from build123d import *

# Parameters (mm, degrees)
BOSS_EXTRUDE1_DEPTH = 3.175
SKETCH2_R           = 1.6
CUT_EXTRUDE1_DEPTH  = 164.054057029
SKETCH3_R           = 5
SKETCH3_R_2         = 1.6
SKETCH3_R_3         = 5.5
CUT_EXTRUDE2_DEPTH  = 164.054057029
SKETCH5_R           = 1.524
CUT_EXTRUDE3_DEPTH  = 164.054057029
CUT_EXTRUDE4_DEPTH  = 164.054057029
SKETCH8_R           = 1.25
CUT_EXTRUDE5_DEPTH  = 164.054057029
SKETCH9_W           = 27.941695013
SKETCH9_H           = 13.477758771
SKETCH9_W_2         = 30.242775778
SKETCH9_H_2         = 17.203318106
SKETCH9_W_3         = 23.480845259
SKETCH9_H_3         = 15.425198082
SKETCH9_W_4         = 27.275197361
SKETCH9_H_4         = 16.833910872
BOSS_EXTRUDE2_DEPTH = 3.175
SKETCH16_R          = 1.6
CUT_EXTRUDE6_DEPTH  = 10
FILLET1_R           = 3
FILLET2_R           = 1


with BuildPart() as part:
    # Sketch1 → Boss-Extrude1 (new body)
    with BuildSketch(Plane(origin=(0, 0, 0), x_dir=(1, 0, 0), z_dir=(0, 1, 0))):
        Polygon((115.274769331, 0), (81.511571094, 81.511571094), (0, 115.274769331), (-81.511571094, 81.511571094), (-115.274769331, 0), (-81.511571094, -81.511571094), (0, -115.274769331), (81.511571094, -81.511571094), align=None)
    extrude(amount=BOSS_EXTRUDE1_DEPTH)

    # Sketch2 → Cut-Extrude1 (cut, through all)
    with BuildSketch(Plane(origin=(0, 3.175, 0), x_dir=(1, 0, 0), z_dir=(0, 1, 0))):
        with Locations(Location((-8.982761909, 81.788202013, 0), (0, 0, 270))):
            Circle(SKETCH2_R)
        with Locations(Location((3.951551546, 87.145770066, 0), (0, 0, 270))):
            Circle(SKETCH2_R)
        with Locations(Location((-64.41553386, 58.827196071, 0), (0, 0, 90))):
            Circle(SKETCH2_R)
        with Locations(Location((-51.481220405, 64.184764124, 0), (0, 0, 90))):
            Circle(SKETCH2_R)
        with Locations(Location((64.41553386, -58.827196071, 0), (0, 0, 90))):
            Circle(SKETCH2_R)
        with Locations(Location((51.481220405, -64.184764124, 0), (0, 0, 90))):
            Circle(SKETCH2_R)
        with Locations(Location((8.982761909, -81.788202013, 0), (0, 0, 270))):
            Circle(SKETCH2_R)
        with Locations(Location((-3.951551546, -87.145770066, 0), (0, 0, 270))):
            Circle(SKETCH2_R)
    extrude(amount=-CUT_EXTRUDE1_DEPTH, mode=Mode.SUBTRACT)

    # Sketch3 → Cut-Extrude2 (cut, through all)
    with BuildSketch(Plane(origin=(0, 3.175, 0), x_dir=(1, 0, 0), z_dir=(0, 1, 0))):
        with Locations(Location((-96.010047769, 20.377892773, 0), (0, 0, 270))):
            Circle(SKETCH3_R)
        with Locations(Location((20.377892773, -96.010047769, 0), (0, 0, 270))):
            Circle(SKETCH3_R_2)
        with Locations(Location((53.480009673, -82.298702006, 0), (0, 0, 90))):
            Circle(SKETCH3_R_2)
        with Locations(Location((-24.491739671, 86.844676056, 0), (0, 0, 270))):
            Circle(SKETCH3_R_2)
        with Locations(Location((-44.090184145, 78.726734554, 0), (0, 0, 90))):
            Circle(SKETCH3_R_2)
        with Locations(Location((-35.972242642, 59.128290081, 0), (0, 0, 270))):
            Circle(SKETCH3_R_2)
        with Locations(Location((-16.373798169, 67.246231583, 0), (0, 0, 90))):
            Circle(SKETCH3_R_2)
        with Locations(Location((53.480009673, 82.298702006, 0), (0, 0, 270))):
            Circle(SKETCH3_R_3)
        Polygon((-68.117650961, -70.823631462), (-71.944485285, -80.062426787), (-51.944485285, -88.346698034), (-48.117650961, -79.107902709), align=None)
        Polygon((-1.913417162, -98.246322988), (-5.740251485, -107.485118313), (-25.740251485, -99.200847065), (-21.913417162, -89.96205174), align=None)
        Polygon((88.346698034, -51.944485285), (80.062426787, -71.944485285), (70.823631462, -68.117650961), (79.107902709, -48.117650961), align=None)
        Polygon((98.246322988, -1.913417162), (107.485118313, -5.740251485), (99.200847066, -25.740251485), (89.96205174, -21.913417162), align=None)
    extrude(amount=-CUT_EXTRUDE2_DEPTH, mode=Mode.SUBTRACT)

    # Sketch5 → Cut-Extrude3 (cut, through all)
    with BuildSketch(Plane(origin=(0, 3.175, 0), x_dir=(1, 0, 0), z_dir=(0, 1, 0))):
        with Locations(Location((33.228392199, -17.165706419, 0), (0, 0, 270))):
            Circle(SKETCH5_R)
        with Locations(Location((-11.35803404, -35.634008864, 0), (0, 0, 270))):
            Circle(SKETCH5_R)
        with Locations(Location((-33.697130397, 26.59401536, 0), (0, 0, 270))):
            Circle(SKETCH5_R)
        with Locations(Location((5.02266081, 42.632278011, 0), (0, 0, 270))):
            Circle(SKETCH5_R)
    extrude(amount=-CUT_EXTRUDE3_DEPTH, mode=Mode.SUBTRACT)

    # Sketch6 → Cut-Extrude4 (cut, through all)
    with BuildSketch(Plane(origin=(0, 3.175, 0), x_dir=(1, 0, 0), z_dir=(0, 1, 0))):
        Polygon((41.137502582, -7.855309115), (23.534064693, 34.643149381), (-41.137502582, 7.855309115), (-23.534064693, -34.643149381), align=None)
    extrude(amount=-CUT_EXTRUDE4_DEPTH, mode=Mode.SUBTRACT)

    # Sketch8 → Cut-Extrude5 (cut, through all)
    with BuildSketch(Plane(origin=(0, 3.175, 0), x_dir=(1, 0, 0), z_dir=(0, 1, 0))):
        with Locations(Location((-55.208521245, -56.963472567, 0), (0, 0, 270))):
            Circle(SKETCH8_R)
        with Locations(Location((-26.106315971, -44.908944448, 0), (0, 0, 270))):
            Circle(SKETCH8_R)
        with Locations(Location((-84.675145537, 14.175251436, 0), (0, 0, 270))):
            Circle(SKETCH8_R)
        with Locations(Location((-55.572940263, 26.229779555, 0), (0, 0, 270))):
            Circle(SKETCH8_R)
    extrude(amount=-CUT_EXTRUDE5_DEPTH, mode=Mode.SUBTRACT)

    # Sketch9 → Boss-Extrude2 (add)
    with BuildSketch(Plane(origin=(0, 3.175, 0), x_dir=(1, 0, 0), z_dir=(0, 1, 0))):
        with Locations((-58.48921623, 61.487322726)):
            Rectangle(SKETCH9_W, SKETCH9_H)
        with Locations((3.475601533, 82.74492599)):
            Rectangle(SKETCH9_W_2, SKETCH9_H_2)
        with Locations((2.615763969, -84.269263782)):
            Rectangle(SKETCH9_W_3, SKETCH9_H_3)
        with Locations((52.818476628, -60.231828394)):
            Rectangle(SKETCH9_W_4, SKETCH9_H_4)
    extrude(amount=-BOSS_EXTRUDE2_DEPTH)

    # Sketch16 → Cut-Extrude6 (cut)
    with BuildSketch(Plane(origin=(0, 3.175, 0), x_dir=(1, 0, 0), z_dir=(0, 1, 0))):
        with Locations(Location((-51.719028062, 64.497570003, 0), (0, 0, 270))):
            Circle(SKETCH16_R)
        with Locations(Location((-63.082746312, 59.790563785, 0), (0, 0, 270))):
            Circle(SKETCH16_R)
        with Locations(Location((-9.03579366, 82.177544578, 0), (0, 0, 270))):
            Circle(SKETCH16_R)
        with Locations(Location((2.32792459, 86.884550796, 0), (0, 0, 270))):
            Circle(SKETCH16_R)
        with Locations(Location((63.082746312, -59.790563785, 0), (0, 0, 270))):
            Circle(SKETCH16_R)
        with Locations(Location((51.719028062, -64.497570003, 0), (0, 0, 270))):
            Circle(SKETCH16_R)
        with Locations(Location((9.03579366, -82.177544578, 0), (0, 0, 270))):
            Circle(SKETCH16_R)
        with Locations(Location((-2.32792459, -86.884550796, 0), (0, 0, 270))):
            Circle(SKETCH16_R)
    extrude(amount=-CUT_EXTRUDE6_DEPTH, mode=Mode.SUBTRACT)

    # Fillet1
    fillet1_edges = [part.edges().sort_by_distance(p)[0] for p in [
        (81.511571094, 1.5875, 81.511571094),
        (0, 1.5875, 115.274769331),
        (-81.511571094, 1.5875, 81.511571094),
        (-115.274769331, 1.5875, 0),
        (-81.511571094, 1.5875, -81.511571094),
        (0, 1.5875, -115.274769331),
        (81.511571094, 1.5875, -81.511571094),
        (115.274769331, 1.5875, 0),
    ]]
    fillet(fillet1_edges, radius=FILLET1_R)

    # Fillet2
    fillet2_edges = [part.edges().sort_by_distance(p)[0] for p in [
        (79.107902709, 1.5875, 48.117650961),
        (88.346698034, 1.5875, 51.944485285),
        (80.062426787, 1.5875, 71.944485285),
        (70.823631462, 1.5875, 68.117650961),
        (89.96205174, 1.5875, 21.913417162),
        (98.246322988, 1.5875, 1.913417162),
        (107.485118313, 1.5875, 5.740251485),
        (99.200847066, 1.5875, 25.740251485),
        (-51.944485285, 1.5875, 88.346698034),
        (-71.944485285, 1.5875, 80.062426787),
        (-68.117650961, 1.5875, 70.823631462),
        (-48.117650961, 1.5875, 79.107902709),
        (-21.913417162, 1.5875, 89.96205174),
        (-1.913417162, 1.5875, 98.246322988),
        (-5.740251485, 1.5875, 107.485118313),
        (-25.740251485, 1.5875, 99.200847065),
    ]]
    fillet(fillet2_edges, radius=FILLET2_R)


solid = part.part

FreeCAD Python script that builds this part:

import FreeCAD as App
import Part
import Sketcher

V = App.Vector
Q = App.Units.Quantity


def edges_at(feature, points):
    """Names of the edges that pass closest to the given points."""
    edges = feature.Shape.Edges
    near = lambda p: min(range(len(edges)), key=lambda i: edges[i].distToShape(Part.Vertex(*p))[0])
    return sorted({f"Edge{near(p) + 1}" for p in points})


def add_polygon(sketch, points):
    """Adds a closed chain of lines whose ends are joined by coincident constraints."""
    first, n = sketch.GeometryCount, len(points)
    for a, b in zip(points, points[1:] + points[:1]):
        sketch.addGeometry(Part.LineSegment(App.Vector(*a, 0), App.Vector(*b, 0)), False)
    for i in range(n):
        sketch.addConstraint(Sketcher.Constraint("Coincident", first + i, 2, first + (i + 1) % n, 1))

doc = App.newDocument("Part")
body = doc.addObject("PartDesign::Body", "Body")

# Sketch on XZ plane
sketch1 = body.newObject("Sketcher::SketchObject", "Sketch")
sketch1.AttachmentSupport = (doc.getObject("XZ_Plane"), [""])
sketch1.MapMode = "FlatFace"
add_polygon(sketch1, [(115, 0), (82, -82), (0, -115), (-82, -82), (-115, 0), (-82, 82), (0, 115), (82, 82)])  # lines 0-7
sketch1.addConstraint(Sketcher.Constraint("Symmetric", 0, 2, 4, 2, -1, 1))
sketch1.addConstraint(Sketcher.Constraint("Symmetric", 1, 2, 5, 2, -1, 1))
sketch1.addConstraint(Sketcher.Constraint("Symmetric", 2, 2, 6, 2, -1, 1))
sketch1.addConstraint(Sketcher.Constraint("Symmetric", 3, 2, 7, 2, -1, 1))
sketch1.addConstraint(Sketcher.Constraint("Symmetric", 0, 2, 2, 2, -2))
sketch1.addConstraint(Sketcher.Constraint("PointOnObject", 1, 2, -2))
sketch1.addConstraint(Sketcher.Constraint("PointOnObject", 3, 2, -1))
sketch1.addConstraint(Sketcher.Constraint("Perpendicular", 0, 2))
sketch1.addConstraint(Sketcher.Constraint("Equal", 0, 1))
sketch1.addConstraint(Sketcher.Constraint("Angle", 0, Q("-112.5 deg")))
sketch1.addConstraint(Sketcher.Constraint("DistanceY", 1, 2, 0, 2, 33.763198))
pad1 = body.newObject("PartDesign::Pad", "Pad")
pad1.Profile = sketch1
pad1.Length = 3.175
pad1.Reversed = True

# Sketch on XZ plane
sketch2 = body.newObject("Sketcher::SketchObject", "Sketch001")
sketch2.AttachmentSupport = (doc.getObject("XZ_Plane"), [""])
sketch2.MapMode = "FlatFace"
sketch2.AttachmentOffset = App.Placement(V(0, 0, -3.175), App.Rotation())
sketch2.addGeometry(Part.Circle(V(-9, -81.8, 0), V(0, 0, 1), 1.6), False)
sketch2.addGeometry(Part.Circle(V(4, -87.1, 0), V(0, 0, 1), 1.6), False)
sketch2.addGeometry(Part.Circle(V(-64.4, -58.8, 0), V(0, 0, 1), 1.6), False)
sketch2.addGeometry(Part.Circle(V(-51.5, -64.2, 0), V(0, 0, 1), 1.6), False)
sketch2.addGeometry(Part.Circle(V(64.4, 58.8, 0), V(0, 0, 1), 1.6), False)
sketch2.addGeometry(Part.Circle(V(51.5, 64.2, 0), V(0, 0, 1), 1.6), False)
sketch2.addGeometry(Part.Circle(V(9, 81.8, 0), V(0, 0, 1), 1.6), False)
sketch2.addGeometry(Part.Circle(V(-4, 87.1, 0), V(0, 0, 1), 1.6), False)
sketch2.addConstraint(Sketcher.Constraint("Equal", 0, 1))
sketch2.addConstraint(Sketcher.Constraint("Equal", 1, 2))
sketch2.addConstraint(Sketcher.Constraint("Equal", 2, 3))
sketch2.addConstraint(Sketcher.Constraint("Equal", 3, 4))
sketch2.addConstraint(Sketcher.Constraint("Equal", 4, 5))
sketch2.addConstraint(Sketcher.Constraint("Equal", 5, 6))
sketch2.addConstraint(Sketcher.Constraint("Equal", 6, 7))
sketch2.addConstraint(Sketcher.Constraint("Symmetric", 2, 3, 4, 3, -1, 1))
sketch2.addConstraint(Sketcher.Constraint("Symmetric", 3, 3, 5, 3, -1, 1))
sketch2.addConstraint(Sketcher.Constraint("Symmetric", 0, 3, 6, 3, -1, 1))
sketch2.addConstraint(Sketcher.Constraint("Symmetric", 1, 3, 7, 3, -1, 1))
sketch2.addConstraint(Sketcher.Constraint("Diameter", 0, 3.2))
sketch2.addConstraint(Sketcher.Constraint("DistanceY", 0, 3, 4, 3, 140.615398))
sketch2.addConstraint(Sketcher.Constraint("DistanceX", 0, 3, -1, 1, 8.982762))
sketch2.addConstraint(Sketcher.Constraint("DistanceX", -1, 1, 1, 3, 3.951552))
sketch2.addConstraint(Sketcher.Constraint("DistanceY", 1, 3, -1, 1, 87.14577))
sketch2.addConstraint(Sketcher.Constraint("DistanceX", 3, 3, -1, 1, 51.48122))
sketch2.addConstraint(Sketcher.Constraint("DistanceY", 1, 3, 0, 3, 5.357568))
sketch2.addConstraint(Sketcher.Constraint("DistanceX", 2, 3, 0, 3, 55.432772))
sketch2.addConstraint(Sketcher.Constraint("DistanceY", 3, 3, 2, 3, 5.357568))
pocket1 = body.newObject("PartDesign::Pocket", "Pocket")
pocket1.Profile = sketch2
pocket1.Type = "ThroughAll"
pocket1.Reversed = True

# Sketch on XZ plane
sketch3 = body.newObject("Sketcher::SketchObject", "Sketch002")
sketch3.AttachmentSupport = (doc.getObject("XZ_Plane"), [""])
sketch3.MapMode = "FlatFace"
sketch3.AttachmentOffset = App.Placement(V(0, 0, -3.175), App.Rotation())
sketch3.addGeometry(Part.Circle(V(-96, -20.4, 0), V(0, 0, 1), 5), False)  # 0
sketch3.addGeometry(Part.Circle(V(20.4, 96, 0), V(0, 0, 1), 1.6), False)  # 1
sketch3.addGeometry(Part.Circle(V(53.5, 82.3, 0), V(0, 0, 1), 1.6), False)  # 2
sketch3.addGeometry(Part.Circle(V(-24.5, -86.8, 0), V(0, 0, 1), 1.6), False)  # 3
sketch3.addGeometry(Part.Circle(V(-44.1, -78.7, 0), V(0, 0, 1), 1.6), False)  # 4
sketch3.addGeometry(Part.Circle(V(-36, -59.1, 0), V(0, 0, 1), 1.6), False)  # 5
sketch3.addGeometry(Part.Circle(V(-16.4, -67.2, 0), V(0, 0, 1), 1.6), False)  # 6
sketch3.addGeometry(Part.Circle(V(53.5, -82.3, 0), V(0, 0, 1), 5.5), False)  # 7
add_polygon(sketch3, [(-68.1, 70.8), (-71.9, 80.1), (-51.9, 88.3), (-48.1, 79.1)])  # lines 8-11
add_polygon(sketch3, [(-5.7, 107.5), (-1.9, 98.2), (-21.9, 90), (-25.7, 99.2)])  # lines 12-15
add_polygon(sketch3, [(80.1, 71.9), (88.3, 51.9), (79.1, 48.1), (70.8, 68.1)])  # lines 16-19
add_polygon(sketch3, [(107.5, 5.7), (98.2, 1.9), (90, 21.9), (99.2, 25.7)])  # lines 20-23
sketch3.addConstraint(Sketcher.Constraint("Equal", 1, 2))
sketch3.addConstraint(Sketcher.Constraint("Equal", 2, 3))
sketch3.addConstraint(Sketcher.Constraint("Equal", 3, 4))
sketch3.addConstraint(Sketcher.Constraint("Equal", 4, 5))
sketch3.addConstraint(Sketcher.Constraint("Equal", 5, 6))
sketch3.addConstraint(Sketcher.Constraint("Symmetric", 2, 3, 7, 3, -1))
sketch3.addConstraint(Sketcher.Constraint("Perpendicular", 8, 9))
sketch3.addConstraint(Sketcher.Constraint("Perpendicular", 9, 10))
sketch3.addConstraint(Sketcher.Constraint("Perpendicular", 10, 11))
sketch3.addConstraint(Sketcher.Constraint("Perpendicular", 11, 12))
sketch3.addConstraint(Sketcher.Constraint("Perpendicular", 12, 13))
sketch3.addConstraint(Sketcher.Constraint("Perpendicular", 13, 14))
sketch3.addConstraint(Sketcher.Constraint("Perpendicular", 14, 15))
sketch3.addConstraint(Sketcher.Constraint("Perpendicular", 15, 16))
sketch3.addConstraint(Sketcher.Constraint("Perpendicular", 16, 17))
sketch3.addConstraint(Sketcher.Constraint("Perpendicular", 17, 18))
sketch3.addConstraint(Sketcher.Constraint("Perpendicular", 18, 19))
sketch3.addConstraint(Sketcher.Constraint("Parallel", 19, 20))
sketch3.addConstraint(Sketcher.Constraint("Perpendicular", 20, 21))
sketch3.addConstraint(Sketcher.Constraint("Perpendicular", 21, 22))
sketch3.addConstraint(Sketcher.Constraint("Perpendicular", 22, 23))
sketch3.addConstraint(Sketcher.Constraint("Equal", 10, 12))
sketch3.addConstraint(Sketcher.Constraint("Equal", 11, 13))
sketch3.addConstraint(Sketcher.Constraint("Equal", 15, 16))
sketch3.addConstraint(Sketcher.Constraint("Equal", 14, 17))
sketch3.addConstraint(Sketcher.Constraint("Equal", 19, 20))
sketch3.addConstraint(Sketcher.Constraint("Equal", 18, 21))
sketch3.addConstraint(Sketcher.Constraint("Diameter", 0, 10.0))
sketch3.addConstraint(Sketcher.Constraint("Diameter", 7, 11.0))
sketch3.addConstraint(Sketcher.Constraint("Diameter", 1, 3.2))
sketch3.addConstraint(Sketcher.Constraint("Distance", 8, 10.0))
sketch3.addConstraint(Sketcher.Constraint("Angle", 8, Q("112.5 deg")))
sketch3.addConstraint(Sketcher.Constraint("DistanceX", 8, 2, 9, 2, 20.0))
sketch3.addConstraint(Sketcher.Constraint("DistanceX", 6, 3, -1, 1, 16.373798))
sketch3.addConstraint(Sketcher.Constraint("DistanceY", -1, 1, 9, 2, 88.346698))
sketch3.addConstraint(Sketcher.Constraint("DistanceX", -1, 1, 16, 2, 88.346698))
sketch3.addConstraint(Sketcher.Constraint("DistanceY", 10, 2, 2, 3, 3.190799))
sketch3.addConstraint(Sketcher.Constraint("DistanceX", 10, 2, 14, 2, 22.377399))
sketch3.addConstraint(Sketcher.Constraint("DistanceY", 1, 3, 14, 2, 3.190799))
sketch3.addConstraint(Sketcher.Constraint("DistanceY", 22, 2, 17, 2, 22.377399))
sketch3.addConstraint(Sketcher.Constraint("DistanceX", -1, 1, 2, 3, 53.48001))
sketch3.addConstraint(Sketcher.Constraint("DistanceX", 3, 3, -1, 1, 24.49174))
sketch3.addConstraint(Sketcher.Constraint("DistanceY", 5, 3, -1, 1, 59.12829))
sketch3.addConstraint(Sketcher.Constraint("DistanceY", 6, 3, -1, 1, 67.246232))
sketch3.addConstraint(Sketcher.Constraint("DistanceX", 10, 2, -1, 1, 48.117651))
sketch3.addConstraint(Sketcher.Constraint("DistanceY", -1, 1, 13, 2, 89.962052))
sketch3.addConstraint(Sketcher.Constraint("DistanceY", -1, 1, 17, 2, 48.117651))
sketch3.addConstraint(Sketcher.Constraint("DistanceX", -1, 1, 21, 2, 89.962052))
sketch3.addConstraint(Sketcher.Constraint("DistanceX", 0, 3, 1, 3, 116.387941))
sketch3.addConstraint(Sketcher.Constraint("DistanceY", 0, 3, 1, 3, 116.387941))
sketch3.addConstraint(Sketcher.Constraint("DistanceX", 0, 3, 3, 3, 71.518308))
sketch3.addConstraint(Sketcher.Constraint("DistanceY", 3, 3, 2, 3, 169.143378))
sketch3.addConstraint(Sketcher.Constraint("DistanceY", 3, 3, 4, 3, 8.117942))
sketch3.addConstraint(Sketcher.Constraint("DistanceX", 4, 3, 5, 3, 8.117942))
sketch3.addConstraint(Sketcher.Constraint("DistanceX", 4, 3, -1, 1, 44.090184))
pocket2 = body.newObject("PartDesign::Pocket", "Pocket001")
pocket2.Profile = sketch3
pocket2.Type = "ThroughAll"
pocket2.Reversed = True

# Sketch on XZ plane
sketch4 = body.newObject("Sketcher::SketchObject", "Sketch003")
sketch4.AttachmentSupport = (doc.getObject("XZ_Plane"), [""])
sketch4.MapMode = "FlatFace"
sketch4.AttachmentOffset = App.Placement(V(0, 0, -3.175), App.Rotation())
sketch4.addGeometry(Part.Circle(V(33.2, 17.2, 0), V(0, 0, 1), 1.5), False)
sketch4.addGeometry(Part.Circle(V(-11.4, 35.6, 0), V(0, 0, 1), 1.5), False)
sketch4.addGeometry(Part.Circle(V(-33.7, -26.6, 0), V(0, 0, 1), 1.5), False)
sketch4.addGeometry(Part.Circle(V(5, -42.6, 0), V(0, 0, 1), 1.5), False)
sketch4.addConstraint(Sketcher.Constraint("Equal", 0, 1))
sketch4.addConstraint(Sketcher.Constraint("Equal", 1, 2))
sketch4.addConstraint(Sketcher.Constraint("Equal", 2, 3))
sketch4.addConstraint(Sketcher.Constraint("Diameter", 0, 3.048))
sketch4.addConstraint(Sketcher.Constraint("DistanceY", -1, 1, 1, 3, 35.634009))
sketch4.addConstraint(Sketcher.Constraint("DistanceX", 2, 3, -1, 1, 33.69713))
sketch4.addConstraint(Sketcher.Constraint("DistanceX", -1, 1, 3, 3, 5.022661))
sketch4.addConstraint(Sketcher.Constraint("DistanceY", 3, 3, -1, 1, 42.632278))
sketch4.addConstraint(Sketcher.Constraint("DistanceY", 2, 3, 0, 3, 43.759722))
sketch4.addConstraint(Sketcher.Constraint("DistanceX", 3, 3, 0, 3, 28.205731))
sketch4.addConstraint(Sketcher.Constraint("DistanceY", -1, 1, 0, 3, 17.165706))
sketch4.addConstraint(Sketcher.Constraint("DistanceX", 1, 3, -1, 1, 11.358034))
pocket3 = body.newObject("PartDesign::Pocket", "Pocket002")
pocket3.Profile = sketch4
pocket3.Type = "ThroughAll"
pocket3.Reversed = True

# Sketch on XZ plane
sketch5 = body.newObject("Sketcher::SketchObject", "Sketch004")
sketch5.AttachmentSupport = (doc.getObject("XZ_Plane"), [""])
sketch5.MapMode = "FlatFace"
sketch5.AttachmentOffset = App.Placement(V(0, 0, -3.175), App.Rotation())
add_polygon(sketch5, [(41, 8), (24, -35), (-41, -8), (-24, 35)])  # lines 0-3
sketch5.addConstraint(Sketcher.Constraint("Symmetric", 0, 2, 2, 2, -1, 1))
sketch5.addConstraint(Sketcher.Constraint("Symmetric", 1, 2, 3, 2, -1, 1))
sketch5.addConstraint(Sketcher.Constraint("Perpendicular", 0, 1))
sketch5.addConstraint(Sketcher.Constraint("Distance", 0, 46.0))
sketch5.addConstraint(Sketcher.Constraint("Distance", 1, 70.0))
sketch5.addConstraint(Sketcher.Constraint("Angle", 0, Q("-112.5 deg")))
pocket4 = body.newObject("PartDesign::Pocket", "Pocket003")
pocket4.Profile = sketch5
pocket4.Type = "ThroughAll"
pocket4.Reversed = True

# Sketch on XZ plane
sketch6 = body.newObject("Sketcher::SketchObject", "Sketch005")
sketch6.AttachmentSupport = (doc.getObject("XZ_Plane"), [""])
sketch6.MapMode = "FlatFace"
sketch6.AttachmentOffset = App.Placement(V(0, 0, -3.175), App.Rotation())
sketch6.addGeometry(Part.Circle(V(-55.2, 57, 0), V(0, 0, 1), 1.2), False)
sketch6.addGeometry(Part.Circle(V(-26.1, 44.9, 0), V(0, 0, 1), 1.2), False)
sketch6.addGeometry(Part.Circle(V(-84.7, -14.2, 0), V(0, 0, 1), 1.2), False)
sketch6.addGeometry(Part.Circle(V(-55.6, -26.2, 0), V(0, 0, 1), 1.2), False)
sketch6.addConstraint(Sketcher.Constraint("Equal", 0, 1))
sketch6.addConstraint(Sketcher.Constraint("Equal", 1, 2))
sketch6.addConstraint(Sketcher.Constraint("Equal", 2, 3))
sketch6.addConstraint(Sketcher.Constraint("Diameter", 0, 2.5))
sketch6.addConstraint(Sketcher.Constraint("DistanceX", 0, 3, -1, 1, 55.208521))
sketch6.addConstraint(Sketcher.Constraint("DistanceY", 2, 3, -1, 1, 14.175251))
sketch6.addConstraint(Sketcher.Constraint("DistanceX", 3, 3, -1, 1, 55.57294))
sketch6.addConstraint(Sketcher.Constraint("DistanceY", 3, 3, -1, 1, 26.22978))
sketch6.addConstraint(Sketcher.Constraint("DistanceY", 1, 3, 0, 3, 12.054528))
sketch6.addConstraint(Sketcher.Constraint("DistanceX", 2, 3, 1, 3, 58.56883))
sketch6.addConstraint(Sketcher.Constraint("DistanceY", -1, 1, 0, 3, 56.963473))
sketch6.addConstraint(Sketcher.Constraint("DistanceX", 1, 3, -1, 1, 26.106316))
pocket5 = body.newObject("PartDesign::Pocket", "Pocket004")
pocket5.Profile = sketch6
pocket5.Type = "ThroughAll"
pocket5.Reversed = True

# Sketch on XZ plane
sketch7 = body.newObject("Sketcher::SketchObject", "Sketch006")
sketch7.AttachmentSupport = (doc.getObject("XZ_Plane"), [""])
sketch7.MapMode = "FlatFace"
sketch7.AttachmentOffset = App.Placement(V(0, 0, -3.175), App.Rotation())
add_polygon(sketch7, [(-72, -68), (-72, -55), (-45, -55), (-45, -68)])  # lines 0-3
add_polygon(sketch7, [(-12, -91), (-12, -74), (19, -74), (19, -91)])  # lines 4-7
add_polygon(sketch7, [(-9, 77), (-9, 92), (14, 92), (14, 77)])  # lines 8-11
add_polygon(sketch7, [(39, 52), (39, 69), (66, 69), (66, 52)])  # lines 12-15
sketch7.addConstraint(Sketcher.Constraint("Vertical", 0))
sketch7.addConstraint(Sketcher.Constraint("Horizontal", 1))
sketch7.addConstraint(Sketcher.Constraint("Vertical", 2))
sketch7.addConstraint(Sketcher.Constraint("Horizontal", 3))
sketch7.addConstraint(Sketcher.Constraint("Vertical", 4))
sketch7.addConstraint(Sketcher.Constraint("Horizontal", 5))
sketch7.addConstraint(Sketcher.Constraint("Vertical", 6))
sketch7.addConstraint(Sketcher.Constraint("Horizontal", 7))
sketch7.addConstraint(Sketcher.Constraint("Vertical", 8))
sketch7.addConstraint(Sketcher.Constraint("Horizontal", 9))
sketch7.addConstraint(Sketcher.Constraint("Vertical", 10))
sketch7.addConstraint(Sketcher.Constraint("Horizontal", 11))
sketch7.addConstraint(Sketcher.Constraint("Vertical", 12))
sketch7.addConstraint(Sketcher.Constraint("Horizontal", 13))
sketch7.addConstraint(Sketcher.Constraint("Vertical", 14))
sketch7.addConstraint(Sketcher.Constraint("Horizontal", 15))
sketch7.addConstraint(Sketcher.Constraint("DistanceY", 8, 1, 8, 2, 15.425198))
sketch7.addConstraint(Sketcher.Constraint("DistanceY", 0, 1, 0, 2, 13.477759))
sketch7.addConstraint(Sketcher.Constraint("DistanceY", 4, 1, 4, 2, 17.203318))
sketch7.addConstraint(Sketcher.Constraint("DistanceY", 12, 1, 12, 2, 16.833911))
sketch7.addConstraint(Sketcher.Constraint("DistanceX", 1, 1, 1, 2, 27.941695))
sketch7.addConstraint(Sketcher.Constraint("DistanceX", 5, 1, 5, 2, 30.242776))
sketch7.addConstraint(Sketcher.Constraint("DistanceX", 9, 1, 9, 2, 23.480845))
sketch7.addConstraint(Sketcher.Constraint("DistanceX", 13, 1, 13, 2, 27.275197))
sketch7.addConstraint(Sketcher.Constraint("DistanceX", 1, 2, -1, 1, 44.518369))
sketch7.addConstraint(Sketcher.Constraint("DistanceX", -1, 1, 5, 2, 18.596989))
sketch7.addConstraint(Sketcher.Constraint("DistanceX", 8, 2, -1, 1, 9.124659))
sketch7.addConstraint(Sketcher.Constraint("DistanceY", 6, 2, 1, 2, 36.598142))
sketch7.addConstraint(Sketcher.Constraint("DistanceY", 4, 2, 8, 2, 166.12513))
sketch7.addConstraint(Sketcher.Constraint("DistanceX", 10, 2, 12, 2, 24.824691))
sketch7.addConstraint(Sketcher.Constraint("DistanceY", 12, 2, 10, 2, 7.907881))
sketch7.addConstraint(Sketcher.Constraint("DistanceY", 0, 2, -1, 1, 54.748443))
pad2 = body.newObject("PartDesign::Pad", "Pad001")
pad2.Profile = sketch7
pad2.Length = 3.175

# Sketch on XZ plane
sketch8 = body.newObject("Sketcher::SketchObject", "Sketch007")
sketch8.AttachmentSupport = (doc.getObject("XZ_Plane"), [""])
sketch8.MapMode = "FlatFace"
sketch8.AttachmentOffset = App.Placement(V(0, 0, -3.175), App.Rotation())
sketch8.addGeometry(Part.Circle(V(-51.7, -64.5, 0), V(0, 0, 1), 1.6), False)
sketch8.addGeometry(Part.Circle(V(-63.1, -59.8, 0), V(0, 0, 1), 1.6), False)
sketch8.addGeometry(Part.Circle(V(-9, -82.2, 0), V(0, 0, 1), 1.6), False)
sketch8.addGeometry(Part.Circle(V(2.3, -86.9, 0), V(0, 0, 1), 1.6), False)
sketch8.addGeometry(Part.Circle(V(63.1, 59.8, 0), V(0, 0, 1), 1.6), False)
sketch8.addGeometry(Part.Circle(V(51.7, 64.5, 0), V(0, 0, 1), 1.6), False)
sketch8.addGeometry(Part.Circle(V(9, 82.2, 0), V(0, 0, 1), 1.6), False)
sketch8.addGeometry(Part.Circle(V(-2.3, 86.9, 0), V(0, 0, 1), 1.6), False)
sketch8.addConstraint(Sketcher.Constraint("Equal", 0, 1))
sketch8.addConstraint(Sketcher.Constraint("Equal", 1, 2))
sketch8.addConstraint(Sketcher.Constraint("Equal", 2, 3))
sketch8.addConstraint(Sketcher.Constraint("Equal", 3, 4))
sketch8.addConstraint(Sketcher.Constraint("Equal", 4, 5))
sketch8.addConstraint(Sketcher.Constraint("Equal", 5, 6))
sketch8.addConstraint(Sketcher.Constraint("Equal", 6, 7))
sketch8.addConstraint(Sketcher.Constraint("Symmetric", 1, 3, 4, 3, -1, 1))
sketch8.addConstraint(Sketcher.Constraint("Symmetric", 0, 3, 5, 3, -1, 1))
sketch8.addConstraint(Sketcher.Constraint("Symmetric", 2, 3, 6, 3, -1, 1))
sketch8.addConstraint(Sketcher.Constraint("Symmetric", 3, 3, 7, 3, -1, 1))
sketch8.addConstraint(Sketcher.Constraint("Diameter", 0, 3.2))
sketch8.addConstraint(Sketcher.Constraint("DistanceX", 0, 3, -1, 1, 51.719028))
sketch8.addConstraint(Sketcher.Constraint("DistanceY", 0, 3, -1, 1, 64.49757))
sketch8.addConstraint(Sketcher.Constraint("DistanceY", 3, 3, -1, 1, 86.884551))
sketch8.addConstraint(Sketcher.Constraint("DistanceX", 1, 3, 0, 3, 11.363718))
sketch8.addConstraint(Sketcher.Constraint("DistanceY", 2, 3, 1, 3, 22.386981))
sketch8.addConstraint(Sketcher.Constraint("DistanceX", 2, 3, 3, 3, 11.363718))
sketch8.addConstraint(Sketcher.Constraint("DistanceX", 1, 3, 3, 3, 65.410671))
sketch8.addConstraint(Sketcher.Constraint("DistanceY", 2, 3, 4, 3, 141.968108))
pocket6 = body.newObject("PartDesign::Pocket", "Pocket005")
pocket6.Profile = sketch8
pocket6.Length = 10
pocket6.Reversed = True
doc.recompute()

fillet = body.newObject("PartDesign::Fillet", "Fillet")
fillet.Base = (pocket6, edges_at(pocket6, [
    (81.512, 1.587, 81.512),
    (0, 1.587, 115.275),
    (-81.512, 1.587, 81.512),
    (-115.275, 1.587, 0),
    (-81.512, 1.587, -81.512),
    (0, 1.587, -115.275),
    (81.512, 1.587, -81.512),
    (115.275, 1.587, 0),
]))
fillet.Radius = 3
doc.recompute()

fillet2 = body.newObject("PartDesign::Fillet", "Fillet001")
fillet2.Base = (fillet, edges_at(fillet, [
    (79.108, 1.587, 48.118),
    (88.347, 1.587, 51.944),
    (80.062, 1.587, 71.944),
    (70.824, 1.587, 68.118),
    (89.962, 1.587, 21.913),
    (98.246, 1.587, 1.913),
    (107.485, 1.587, 5.74),
    (99.201, 1.587, 25.74),
    (-51.944, 1.587, 88.347),
    (-71.944, 1.587, 80.062),
    (-68.118, 1.587, 70.824),
    (-48.118, 1.587, 79.108),
    (-21.913, 1.587, 89.962),
    (-1.913, 1.587, 98.246),
    (-5.74, 1.587, 107.485),
    (-25.74, 1.587, 99.201),
]))
fillet2.Radius = 1

doc.recompute()
